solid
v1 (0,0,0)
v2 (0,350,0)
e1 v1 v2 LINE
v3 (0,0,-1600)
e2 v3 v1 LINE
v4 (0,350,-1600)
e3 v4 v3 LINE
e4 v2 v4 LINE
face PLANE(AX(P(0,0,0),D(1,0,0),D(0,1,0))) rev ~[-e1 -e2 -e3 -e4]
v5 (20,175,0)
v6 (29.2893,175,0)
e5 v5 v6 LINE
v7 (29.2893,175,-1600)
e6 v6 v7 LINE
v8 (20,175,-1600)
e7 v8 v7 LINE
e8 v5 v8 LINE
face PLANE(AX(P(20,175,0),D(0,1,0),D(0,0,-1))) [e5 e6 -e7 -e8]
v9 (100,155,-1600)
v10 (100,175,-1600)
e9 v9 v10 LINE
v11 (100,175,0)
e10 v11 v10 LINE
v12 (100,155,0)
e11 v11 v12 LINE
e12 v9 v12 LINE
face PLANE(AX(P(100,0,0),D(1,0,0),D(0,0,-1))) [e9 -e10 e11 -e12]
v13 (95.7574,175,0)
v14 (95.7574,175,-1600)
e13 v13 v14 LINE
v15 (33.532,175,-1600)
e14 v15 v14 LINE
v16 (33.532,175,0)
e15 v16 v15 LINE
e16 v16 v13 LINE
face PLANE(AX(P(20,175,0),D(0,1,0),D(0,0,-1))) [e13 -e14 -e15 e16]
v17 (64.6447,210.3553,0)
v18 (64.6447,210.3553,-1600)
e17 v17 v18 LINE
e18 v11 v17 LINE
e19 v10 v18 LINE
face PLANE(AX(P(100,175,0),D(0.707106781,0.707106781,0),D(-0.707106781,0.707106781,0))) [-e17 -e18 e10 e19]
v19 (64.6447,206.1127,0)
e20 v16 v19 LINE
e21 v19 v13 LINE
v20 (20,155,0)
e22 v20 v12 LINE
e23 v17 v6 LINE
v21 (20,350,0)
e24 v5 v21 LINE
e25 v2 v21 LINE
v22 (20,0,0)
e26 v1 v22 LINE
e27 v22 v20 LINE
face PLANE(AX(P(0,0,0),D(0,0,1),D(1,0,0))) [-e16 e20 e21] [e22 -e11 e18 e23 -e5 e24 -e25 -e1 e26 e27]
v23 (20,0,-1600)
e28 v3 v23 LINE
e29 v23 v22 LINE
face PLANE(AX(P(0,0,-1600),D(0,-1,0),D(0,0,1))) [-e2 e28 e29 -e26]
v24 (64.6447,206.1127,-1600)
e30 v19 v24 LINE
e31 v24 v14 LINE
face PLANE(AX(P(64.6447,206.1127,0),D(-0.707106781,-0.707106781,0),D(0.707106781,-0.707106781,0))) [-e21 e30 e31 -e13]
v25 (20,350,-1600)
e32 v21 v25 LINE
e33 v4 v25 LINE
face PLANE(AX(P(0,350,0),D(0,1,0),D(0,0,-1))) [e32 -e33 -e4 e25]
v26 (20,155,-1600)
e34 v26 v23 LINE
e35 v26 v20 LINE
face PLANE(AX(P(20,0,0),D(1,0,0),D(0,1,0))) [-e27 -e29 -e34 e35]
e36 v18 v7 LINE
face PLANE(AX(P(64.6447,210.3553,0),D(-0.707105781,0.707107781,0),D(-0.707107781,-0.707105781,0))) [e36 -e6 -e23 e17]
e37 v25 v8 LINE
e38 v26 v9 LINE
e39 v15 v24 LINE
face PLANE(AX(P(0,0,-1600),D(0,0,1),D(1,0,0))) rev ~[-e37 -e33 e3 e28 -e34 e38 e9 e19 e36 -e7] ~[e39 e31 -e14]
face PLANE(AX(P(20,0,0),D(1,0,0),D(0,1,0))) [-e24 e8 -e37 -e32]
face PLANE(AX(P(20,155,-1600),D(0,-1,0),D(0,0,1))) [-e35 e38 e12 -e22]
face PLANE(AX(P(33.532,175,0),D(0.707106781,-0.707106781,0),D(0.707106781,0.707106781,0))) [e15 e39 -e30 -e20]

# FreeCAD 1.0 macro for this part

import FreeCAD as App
import Part
import Sketcher
from FreeCAD import Vector


def add_polygon(sketch, points):
    """Adds a closed chain of lines whose ends are joined by coincident constraints."""
    first, n = sketch.GeometryCount, len(points)
    for a, b in zip(points, points[1:] + points[:1]):
        sketch.addGeometry(Part.LineSegment(App.Vector(*a, 0), App.Vector(*b, 0)), False)
    for i in range(n):
        sketch.addConstraint(Sketcher.Constraint("Coincident", first + i, 2, first + (i + 1) % n, 1))

doc = App.newDocument("Part")
body = doc.addObject("PartDesign::Body", "Body")

# Sketch on YZ plane
sketch1 = doc.addObject("Sketcher::SketchObject", "Sketch")
body.addObject(sketch1)
sketch1.AttachmentSupport = (doc.YZ_Plane, [""])
sketch1.MapMode = "FlatFace"
add_polygon(sketch1, [(350, 0), (0, 0), (0, -1600), (350, -1600)])  # lines 0-3
sketch1.addConstraint([
    Sketcher.Constraint("Horizontal", 0),
    Sketcher.Constraint("Vertical", 1),
    Sketcher.Constraint("Horizontal", 2),
    Sketcher.Constraint("Vertical", 3),
    Sketcher.Constraint("Coincident", 0, 2, -1, 1),
    Sketcher.Constraint("DistanceX", 0, 2, 0, 1, 350.0),
    Sketcher.Constraint("DistanceY", 1, 2, 1, 1, 1600.0),
])
pad1 = doc.addObject("PartDesign::Pad", "Pad")
body.addObject(pad1)
pad1.Profile = sketch1
pad1.Length = 20

# Sketch on YZ plane
sketch2 = doc.addObject("Sketcher::SketchObject", "Sketch001")
body.addObject(sketch2)
sketch2.AttachmentSupport = (doc.YZ_Plane, [""])
sketch2.MapMode = "FlatFace"
sketch2.AttachmentOffset = App.Placement(Vector(0, 0, 20), App.Rotation())
add_polygon(sketch2, [(175, -1600), (175, 0), (155, 0), (155, -1600)])  # lines 0-3
sketch2.addConstraint([
    Sketcher.Constraint("Vertical", 0),
    Sketcher.Constraint("Horizontal", 1),
    Sketcher.Constraint("Vertical", 2),
    Sketcher.Constraint("Horizontal", 3),
    Sketcher.Constraint("PointOnObject", 0, 2, -1),
    Sketcher.Constraint("DistanceX", 1, 2, 1, 1, 20.0),
    Sketcher.Constraint("DistanceY", 0, 1, 0, 2, 1600.0),
    Sketcher.Constraint("DistanceX", -1, 1, 0, 2, 175.0),
])
pad2 = doc.addObject("PartDesign::Pad", "Pad001")
body.addObject(pad2)
pad2.Profile = sketch2
pad2.Length = 80

# Sketch on XY plane
sketch3 = doc.addObject("Sketcher::SketchObject", "Sketch002")
body.addObject(sketch3)
sketch3.AttachmentSupport = (doc.XY_Plane, [""])
sketch3.MapMode = "FlatFace"
add_polygon(sketch3, [(95.8, 175), (100, 175), (64.6, 210.4), (29.3, 175), (33.5, 175), (64.6, 206.1)])  # lines 0-5
sketch3.addConstraint([
    Sketcher.Constraint("Horizontal", 0),
    Sketcher.Constraint("Horizontal", 3),
    Sketcher.Constraint("Perpendicular", 1, 2),
    Sketcher.Constraint("Parallel", 2, 4),
    Sketcher.Constraint("Perpendicular", 4, 5),
    Sketcher.Constraint("Horizontal", 0, 2, 2, 2),
    Sketcher.Constraint("Vertical", 1, 2, 4, 2),
    Sketcher.Constraint("Equal", 0, 3),
    Sketcher.Constraint("Distance", 1, 50.0),
    Sketcher.Constraint("Distance", 4, 44.0),
    Sketcher.Constraint("DistanceX", -1, 1, 0, 2, 100.0),
    Sketcher.Constraint("DistanceY", -1, 1, 0, 2, 175.0),
])
pad3 = doc.addObject("PartDesign::Pad", "Pad002")
body.addObject(pad3)
pad3.Profile = sketch3
pad3.Length = 1600
pad3.Reversed = True

doc.recompute()
